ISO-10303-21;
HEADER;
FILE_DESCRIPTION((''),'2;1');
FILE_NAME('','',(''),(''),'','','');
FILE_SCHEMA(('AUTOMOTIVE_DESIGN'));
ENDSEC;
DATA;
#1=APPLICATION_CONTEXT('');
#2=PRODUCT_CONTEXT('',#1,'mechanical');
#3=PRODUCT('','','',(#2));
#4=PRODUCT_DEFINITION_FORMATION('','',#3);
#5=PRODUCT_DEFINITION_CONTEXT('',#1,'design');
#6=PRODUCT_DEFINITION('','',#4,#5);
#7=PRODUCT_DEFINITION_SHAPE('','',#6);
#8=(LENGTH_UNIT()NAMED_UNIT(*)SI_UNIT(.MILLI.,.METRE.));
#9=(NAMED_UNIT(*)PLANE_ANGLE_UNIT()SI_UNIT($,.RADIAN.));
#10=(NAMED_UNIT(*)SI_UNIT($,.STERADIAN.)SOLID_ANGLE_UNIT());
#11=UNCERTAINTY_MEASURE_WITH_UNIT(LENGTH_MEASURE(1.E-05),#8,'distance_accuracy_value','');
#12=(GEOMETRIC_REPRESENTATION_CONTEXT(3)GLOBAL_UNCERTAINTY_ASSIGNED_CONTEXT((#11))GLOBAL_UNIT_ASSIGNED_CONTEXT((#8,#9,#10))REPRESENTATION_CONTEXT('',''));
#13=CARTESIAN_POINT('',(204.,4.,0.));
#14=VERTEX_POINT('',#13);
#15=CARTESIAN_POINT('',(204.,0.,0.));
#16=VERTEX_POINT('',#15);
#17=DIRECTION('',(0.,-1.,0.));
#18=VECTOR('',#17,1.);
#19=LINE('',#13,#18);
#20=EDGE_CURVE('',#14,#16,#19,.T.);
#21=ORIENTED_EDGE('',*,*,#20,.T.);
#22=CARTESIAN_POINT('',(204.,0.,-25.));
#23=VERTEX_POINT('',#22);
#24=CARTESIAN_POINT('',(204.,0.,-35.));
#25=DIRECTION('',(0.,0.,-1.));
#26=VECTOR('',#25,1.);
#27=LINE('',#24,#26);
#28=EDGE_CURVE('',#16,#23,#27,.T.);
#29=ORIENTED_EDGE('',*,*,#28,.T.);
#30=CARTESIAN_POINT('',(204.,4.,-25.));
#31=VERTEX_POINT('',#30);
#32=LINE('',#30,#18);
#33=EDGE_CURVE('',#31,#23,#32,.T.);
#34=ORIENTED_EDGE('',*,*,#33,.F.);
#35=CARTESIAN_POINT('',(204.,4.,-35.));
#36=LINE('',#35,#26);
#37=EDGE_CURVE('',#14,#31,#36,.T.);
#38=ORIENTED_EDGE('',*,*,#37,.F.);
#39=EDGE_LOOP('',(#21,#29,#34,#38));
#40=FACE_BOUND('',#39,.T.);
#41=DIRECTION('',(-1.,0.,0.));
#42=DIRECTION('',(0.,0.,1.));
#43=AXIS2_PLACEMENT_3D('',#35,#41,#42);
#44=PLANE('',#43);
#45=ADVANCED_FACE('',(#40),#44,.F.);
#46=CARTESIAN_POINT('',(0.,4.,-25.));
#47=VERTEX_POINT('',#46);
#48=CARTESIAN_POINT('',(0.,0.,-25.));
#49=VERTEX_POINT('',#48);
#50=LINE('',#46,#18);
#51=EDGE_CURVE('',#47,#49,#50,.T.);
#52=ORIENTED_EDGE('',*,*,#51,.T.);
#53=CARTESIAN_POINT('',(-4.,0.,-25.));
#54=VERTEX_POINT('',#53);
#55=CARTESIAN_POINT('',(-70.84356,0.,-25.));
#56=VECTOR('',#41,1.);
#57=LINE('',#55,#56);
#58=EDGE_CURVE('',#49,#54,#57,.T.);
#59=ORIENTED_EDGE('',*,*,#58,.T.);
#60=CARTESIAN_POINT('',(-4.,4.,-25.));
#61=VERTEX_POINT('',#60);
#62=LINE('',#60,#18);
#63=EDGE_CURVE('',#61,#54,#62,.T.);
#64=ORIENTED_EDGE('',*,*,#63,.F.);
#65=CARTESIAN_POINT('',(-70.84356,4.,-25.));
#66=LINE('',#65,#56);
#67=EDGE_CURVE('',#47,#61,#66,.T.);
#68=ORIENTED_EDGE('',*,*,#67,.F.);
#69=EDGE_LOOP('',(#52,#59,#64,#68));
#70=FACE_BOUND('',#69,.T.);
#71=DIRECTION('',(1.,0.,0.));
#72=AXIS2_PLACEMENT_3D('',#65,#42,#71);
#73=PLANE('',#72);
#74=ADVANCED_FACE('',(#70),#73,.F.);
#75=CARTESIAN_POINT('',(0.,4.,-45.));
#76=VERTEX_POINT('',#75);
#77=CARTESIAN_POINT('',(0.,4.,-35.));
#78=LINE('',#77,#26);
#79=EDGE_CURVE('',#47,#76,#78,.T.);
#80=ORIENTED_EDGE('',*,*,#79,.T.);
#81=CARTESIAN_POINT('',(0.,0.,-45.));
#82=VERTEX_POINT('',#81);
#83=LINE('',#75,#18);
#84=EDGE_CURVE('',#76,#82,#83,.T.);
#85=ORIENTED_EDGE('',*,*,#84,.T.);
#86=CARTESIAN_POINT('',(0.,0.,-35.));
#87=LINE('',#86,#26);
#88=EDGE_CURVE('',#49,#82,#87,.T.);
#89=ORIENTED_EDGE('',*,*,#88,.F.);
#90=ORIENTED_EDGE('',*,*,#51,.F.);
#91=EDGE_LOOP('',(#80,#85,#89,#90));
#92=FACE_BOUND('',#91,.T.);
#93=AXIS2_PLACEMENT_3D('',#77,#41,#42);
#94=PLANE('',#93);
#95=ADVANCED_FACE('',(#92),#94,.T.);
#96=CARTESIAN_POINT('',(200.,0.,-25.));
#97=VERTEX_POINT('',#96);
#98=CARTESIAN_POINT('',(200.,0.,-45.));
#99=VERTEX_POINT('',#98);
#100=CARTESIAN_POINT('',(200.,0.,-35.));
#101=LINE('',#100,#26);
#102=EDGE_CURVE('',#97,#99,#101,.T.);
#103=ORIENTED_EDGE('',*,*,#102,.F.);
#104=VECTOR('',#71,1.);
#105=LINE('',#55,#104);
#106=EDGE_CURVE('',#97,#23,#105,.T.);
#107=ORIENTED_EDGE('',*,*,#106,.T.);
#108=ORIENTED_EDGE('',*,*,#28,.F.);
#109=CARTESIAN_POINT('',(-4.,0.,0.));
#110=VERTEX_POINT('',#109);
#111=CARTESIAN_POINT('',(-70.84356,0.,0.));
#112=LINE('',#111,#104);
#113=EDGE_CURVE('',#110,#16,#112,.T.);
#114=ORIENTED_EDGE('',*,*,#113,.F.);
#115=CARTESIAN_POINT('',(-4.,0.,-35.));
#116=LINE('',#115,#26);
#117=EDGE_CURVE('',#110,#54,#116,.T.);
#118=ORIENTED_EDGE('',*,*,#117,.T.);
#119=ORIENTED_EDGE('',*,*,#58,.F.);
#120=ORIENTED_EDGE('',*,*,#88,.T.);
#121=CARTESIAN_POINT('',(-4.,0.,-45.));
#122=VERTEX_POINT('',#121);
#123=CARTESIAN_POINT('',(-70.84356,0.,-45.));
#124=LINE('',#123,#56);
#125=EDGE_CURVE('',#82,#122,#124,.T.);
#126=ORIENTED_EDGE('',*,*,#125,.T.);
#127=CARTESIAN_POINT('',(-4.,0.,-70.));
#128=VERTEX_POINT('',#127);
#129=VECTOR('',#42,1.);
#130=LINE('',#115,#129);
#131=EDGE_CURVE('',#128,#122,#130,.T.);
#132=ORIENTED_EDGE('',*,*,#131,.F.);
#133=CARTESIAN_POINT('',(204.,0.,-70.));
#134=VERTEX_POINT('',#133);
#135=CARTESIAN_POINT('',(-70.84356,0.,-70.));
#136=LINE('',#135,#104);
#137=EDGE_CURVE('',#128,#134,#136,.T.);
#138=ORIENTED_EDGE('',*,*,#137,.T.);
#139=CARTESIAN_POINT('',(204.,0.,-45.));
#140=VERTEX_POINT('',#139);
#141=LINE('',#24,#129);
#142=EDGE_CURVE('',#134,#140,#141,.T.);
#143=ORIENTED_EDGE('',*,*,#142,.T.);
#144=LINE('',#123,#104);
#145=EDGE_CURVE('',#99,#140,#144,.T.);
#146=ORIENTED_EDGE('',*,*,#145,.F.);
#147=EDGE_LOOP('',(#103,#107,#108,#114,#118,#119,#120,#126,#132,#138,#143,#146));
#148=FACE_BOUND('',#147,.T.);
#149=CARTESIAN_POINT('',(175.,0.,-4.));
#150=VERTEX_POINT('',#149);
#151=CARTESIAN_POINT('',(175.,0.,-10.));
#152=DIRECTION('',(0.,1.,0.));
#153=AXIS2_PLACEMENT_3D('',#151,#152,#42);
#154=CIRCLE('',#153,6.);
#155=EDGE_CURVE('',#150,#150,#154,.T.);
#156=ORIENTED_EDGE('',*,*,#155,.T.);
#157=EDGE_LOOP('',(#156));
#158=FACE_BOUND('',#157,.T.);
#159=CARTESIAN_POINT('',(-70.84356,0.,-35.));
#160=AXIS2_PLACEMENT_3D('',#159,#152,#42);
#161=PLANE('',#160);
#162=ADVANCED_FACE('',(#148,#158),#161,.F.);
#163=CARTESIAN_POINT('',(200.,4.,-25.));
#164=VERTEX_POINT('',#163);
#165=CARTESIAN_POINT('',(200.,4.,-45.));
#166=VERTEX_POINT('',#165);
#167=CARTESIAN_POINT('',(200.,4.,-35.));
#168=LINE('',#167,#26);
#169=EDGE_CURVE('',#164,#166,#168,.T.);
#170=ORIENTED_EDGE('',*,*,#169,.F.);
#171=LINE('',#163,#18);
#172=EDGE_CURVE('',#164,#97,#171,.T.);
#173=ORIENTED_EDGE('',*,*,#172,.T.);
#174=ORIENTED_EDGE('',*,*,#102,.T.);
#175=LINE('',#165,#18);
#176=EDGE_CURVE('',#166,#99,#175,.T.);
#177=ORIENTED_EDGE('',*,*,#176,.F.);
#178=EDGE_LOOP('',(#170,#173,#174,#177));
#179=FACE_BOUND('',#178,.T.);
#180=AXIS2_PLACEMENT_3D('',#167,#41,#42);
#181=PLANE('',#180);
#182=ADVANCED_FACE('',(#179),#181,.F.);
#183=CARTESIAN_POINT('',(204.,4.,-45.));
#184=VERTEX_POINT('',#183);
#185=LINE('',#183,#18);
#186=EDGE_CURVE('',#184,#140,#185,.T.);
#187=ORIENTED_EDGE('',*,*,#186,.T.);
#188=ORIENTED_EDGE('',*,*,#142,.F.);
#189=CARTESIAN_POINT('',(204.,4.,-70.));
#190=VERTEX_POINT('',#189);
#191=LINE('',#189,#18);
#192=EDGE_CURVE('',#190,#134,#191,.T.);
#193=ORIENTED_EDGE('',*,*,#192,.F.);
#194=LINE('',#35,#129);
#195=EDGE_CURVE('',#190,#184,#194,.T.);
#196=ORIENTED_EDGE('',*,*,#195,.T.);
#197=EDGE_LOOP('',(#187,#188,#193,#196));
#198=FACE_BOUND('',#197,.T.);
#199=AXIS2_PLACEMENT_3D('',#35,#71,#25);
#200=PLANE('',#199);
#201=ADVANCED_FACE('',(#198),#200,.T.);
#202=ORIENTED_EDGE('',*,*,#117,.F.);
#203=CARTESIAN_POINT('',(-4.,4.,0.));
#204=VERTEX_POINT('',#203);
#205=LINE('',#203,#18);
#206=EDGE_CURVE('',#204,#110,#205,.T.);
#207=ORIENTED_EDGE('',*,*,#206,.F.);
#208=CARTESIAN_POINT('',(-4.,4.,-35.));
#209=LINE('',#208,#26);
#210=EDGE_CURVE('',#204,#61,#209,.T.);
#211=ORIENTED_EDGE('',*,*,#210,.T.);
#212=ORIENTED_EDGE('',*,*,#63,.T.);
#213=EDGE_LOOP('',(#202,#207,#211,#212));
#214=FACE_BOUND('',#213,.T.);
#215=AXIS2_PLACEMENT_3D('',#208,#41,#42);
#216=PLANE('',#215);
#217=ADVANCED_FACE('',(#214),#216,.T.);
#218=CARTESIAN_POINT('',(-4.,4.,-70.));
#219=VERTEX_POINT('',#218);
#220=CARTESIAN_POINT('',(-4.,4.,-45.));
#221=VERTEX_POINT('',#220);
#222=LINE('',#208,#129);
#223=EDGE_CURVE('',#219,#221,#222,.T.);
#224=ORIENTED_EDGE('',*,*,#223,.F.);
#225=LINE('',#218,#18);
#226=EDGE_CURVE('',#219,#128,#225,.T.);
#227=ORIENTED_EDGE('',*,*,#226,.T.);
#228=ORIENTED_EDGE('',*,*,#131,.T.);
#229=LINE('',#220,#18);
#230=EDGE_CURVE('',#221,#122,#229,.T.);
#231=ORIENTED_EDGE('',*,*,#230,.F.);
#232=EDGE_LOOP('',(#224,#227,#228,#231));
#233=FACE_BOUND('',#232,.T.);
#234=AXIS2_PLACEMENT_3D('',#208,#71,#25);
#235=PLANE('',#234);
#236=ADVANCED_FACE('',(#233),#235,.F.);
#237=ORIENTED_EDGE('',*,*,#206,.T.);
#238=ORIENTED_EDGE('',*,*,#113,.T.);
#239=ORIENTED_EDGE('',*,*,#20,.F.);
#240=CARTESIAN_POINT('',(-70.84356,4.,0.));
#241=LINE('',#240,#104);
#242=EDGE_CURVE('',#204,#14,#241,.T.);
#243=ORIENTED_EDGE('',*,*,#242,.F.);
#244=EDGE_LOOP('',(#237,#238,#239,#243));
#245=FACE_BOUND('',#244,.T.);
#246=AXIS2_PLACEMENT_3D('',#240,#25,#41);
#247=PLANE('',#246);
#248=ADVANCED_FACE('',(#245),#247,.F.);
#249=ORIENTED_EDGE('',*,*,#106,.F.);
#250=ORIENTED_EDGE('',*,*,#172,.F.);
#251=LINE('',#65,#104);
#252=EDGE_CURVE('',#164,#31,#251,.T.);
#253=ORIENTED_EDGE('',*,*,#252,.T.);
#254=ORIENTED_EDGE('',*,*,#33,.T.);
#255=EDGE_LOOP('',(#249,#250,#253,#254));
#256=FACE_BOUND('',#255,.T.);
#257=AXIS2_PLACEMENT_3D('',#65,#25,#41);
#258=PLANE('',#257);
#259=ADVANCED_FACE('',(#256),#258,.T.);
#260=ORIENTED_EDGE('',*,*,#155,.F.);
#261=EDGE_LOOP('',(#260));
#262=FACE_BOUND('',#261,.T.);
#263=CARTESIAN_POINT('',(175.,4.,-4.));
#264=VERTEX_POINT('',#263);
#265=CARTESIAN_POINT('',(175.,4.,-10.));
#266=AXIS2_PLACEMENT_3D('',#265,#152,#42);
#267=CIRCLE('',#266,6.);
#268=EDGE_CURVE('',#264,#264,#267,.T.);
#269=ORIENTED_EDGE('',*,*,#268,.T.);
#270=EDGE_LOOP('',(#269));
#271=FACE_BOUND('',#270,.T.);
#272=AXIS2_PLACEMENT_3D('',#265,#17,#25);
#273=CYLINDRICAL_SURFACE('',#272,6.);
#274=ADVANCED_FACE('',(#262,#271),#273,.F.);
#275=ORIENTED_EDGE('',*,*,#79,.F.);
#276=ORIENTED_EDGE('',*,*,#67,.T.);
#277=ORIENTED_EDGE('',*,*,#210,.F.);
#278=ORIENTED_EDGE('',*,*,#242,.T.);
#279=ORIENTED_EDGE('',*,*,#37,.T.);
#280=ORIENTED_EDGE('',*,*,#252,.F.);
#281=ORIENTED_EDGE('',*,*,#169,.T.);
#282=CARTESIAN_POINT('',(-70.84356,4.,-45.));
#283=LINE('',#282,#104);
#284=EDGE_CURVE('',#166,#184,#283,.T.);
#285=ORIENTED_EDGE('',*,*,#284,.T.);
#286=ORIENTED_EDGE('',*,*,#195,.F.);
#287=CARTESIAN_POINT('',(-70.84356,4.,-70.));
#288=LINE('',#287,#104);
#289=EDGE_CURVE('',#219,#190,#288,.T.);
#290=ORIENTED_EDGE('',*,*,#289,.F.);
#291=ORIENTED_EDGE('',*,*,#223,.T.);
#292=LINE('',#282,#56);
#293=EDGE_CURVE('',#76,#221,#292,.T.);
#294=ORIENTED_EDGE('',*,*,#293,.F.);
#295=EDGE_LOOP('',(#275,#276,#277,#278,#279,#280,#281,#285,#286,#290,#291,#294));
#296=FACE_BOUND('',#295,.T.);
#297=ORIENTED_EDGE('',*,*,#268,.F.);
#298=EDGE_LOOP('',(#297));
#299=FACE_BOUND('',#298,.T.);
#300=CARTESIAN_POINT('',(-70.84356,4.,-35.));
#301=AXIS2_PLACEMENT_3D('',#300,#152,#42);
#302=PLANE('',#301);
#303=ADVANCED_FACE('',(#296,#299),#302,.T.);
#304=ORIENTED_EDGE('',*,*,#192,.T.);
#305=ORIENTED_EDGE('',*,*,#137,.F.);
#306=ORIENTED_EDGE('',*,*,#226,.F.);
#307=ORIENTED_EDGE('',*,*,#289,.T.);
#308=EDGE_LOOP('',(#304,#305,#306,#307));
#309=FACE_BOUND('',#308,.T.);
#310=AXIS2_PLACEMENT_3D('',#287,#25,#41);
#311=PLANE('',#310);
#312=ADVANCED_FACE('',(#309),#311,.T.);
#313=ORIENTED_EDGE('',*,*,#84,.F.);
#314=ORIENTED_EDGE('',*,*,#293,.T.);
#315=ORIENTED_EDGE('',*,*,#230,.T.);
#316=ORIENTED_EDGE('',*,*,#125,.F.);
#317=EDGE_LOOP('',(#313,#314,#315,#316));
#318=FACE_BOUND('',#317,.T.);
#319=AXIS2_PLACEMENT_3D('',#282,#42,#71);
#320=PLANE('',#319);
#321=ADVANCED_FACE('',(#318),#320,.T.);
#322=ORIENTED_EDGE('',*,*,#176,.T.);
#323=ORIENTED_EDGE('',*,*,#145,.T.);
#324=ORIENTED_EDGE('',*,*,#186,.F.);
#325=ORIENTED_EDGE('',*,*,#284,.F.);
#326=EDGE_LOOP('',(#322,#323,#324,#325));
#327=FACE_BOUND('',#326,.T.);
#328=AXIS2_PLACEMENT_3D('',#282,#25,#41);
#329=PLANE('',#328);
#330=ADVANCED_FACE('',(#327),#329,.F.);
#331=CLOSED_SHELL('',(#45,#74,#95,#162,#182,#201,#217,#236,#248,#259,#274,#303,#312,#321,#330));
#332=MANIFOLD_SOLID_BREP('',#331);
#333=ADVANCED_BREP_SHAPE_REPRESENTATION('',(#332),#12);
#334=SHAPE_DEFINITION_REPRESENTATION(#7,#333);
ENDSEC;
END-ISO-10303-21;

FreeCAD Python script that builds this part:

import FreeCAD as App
import Part
import Sketcher

V = App.Vector
Q = App.Units.Quantity


def add_polygon(sketch, points):
    """Adds a closed chain of lines whose ends are joined by coincident constraints."""
    first, n = sketch.GeometryCount, len(points)
    for a, b in zip(points, points[1:] + points[:1]):
        sketch.addGeometry(Part.LineSegment(App.Vector(*a, 0), App.Vector(*b, 0)), False)
    for i in range(n):
        sketch.addConstraint(Sketcher.Constraint("Coincident", first + i, 2, first + (i + 1) % n, 1))

doc = App.newDocument("Part")
params = doc.addObject("Spreadsheet::Sheet", "Params")
for row, (alias, value) in enumerate([
    ("sketch1_diameter", "12 mm"),
    ("sketch1_width", "4 mm"),
    ("sketch1_width2", "208 mm"),
    ("sketch1_height", "25 mm"),
    ("sketch1_height2", "20 mm"),
    ("pad1_length", "4 mm"),
], start=1):
    params.set(f"A{row}", alias)
    params.set(f"B{row}", "=" + value)
    params.setAlias(f"B{row}", alias)

body = doc.addObject("PartDesign::Body", "Body")

sketch1 = body.newObject("Sketcher::SketchObject", "Sketch")
sketch1.AttachmentSupport = (doc.getObject("XZ_Plane"), [""])
sketch1.MapMode = "FlatFace"
add_polygon(sketch1, [(204, 0), (204, -25), (200, -25), (200, -45), (204, -45), (204, -70), (-4, -70), (-4, -45), (0, -45), (0, -25), (-4, -25), (-4, 0)])
sketch1.addGeometry(Part.Circle(V(175, -10, 0), V(0, 0, 1), 6), False)
sketch1.addConstraint([
    Sketcher.Constraint("Vertical", 0),
    Sketcher.Constraint("Horizontal", 1),
    Sketcher.Constraint("Vertical", 2),
    Sketcher.Constraint("Horizontal", 3),
    Sketcher.Constraint("Vertical", 4),
    Sketcher.Constraint("Horizontal", 5),
    Sketcher.Constraint("Vertical", 6),
    Sketcher.Constraint("Horizontal", 7),
    Sketcher.Constraint("Vertical", 8),
    Sketcher.Constraint("Horizontal", 9),
    Sketcher.Constraint("Vertical", 10),
    Sketcher.Constraint("Horizontal", 11),
    Sketcher.Constraint("PointOnObject", 7, 2, -2),
    Sketcher.Constraint("PointOnObject", 10, 2, -1),
    Sketcher.Constraint("Horizontal", 3, 2, 6, 2),
    Sketcher.Constraint("Horizontal", 1, 2, 8, 2),
    Sketcher.Constraint("Vertical", 0, 2, 3, 2),
    Sketcher.Constraint("Vertical", 6, 2, 9, 2),
    Sketcher.Constraint("Equal", 3, 7),
    Sketcher.Constraint("Equal", 0, 4),
    Sketcher.Constraint("Diameter", 12, Q("12 mm")),
    Sketcher.Constraint("DistanceX", 1, 2, 1, 1, Q("4 mm")),
    Sketcher.Constraint("DistanceX", 5, 2, 5, 1, Q("208 mm")),
    Sketcher.Constraint("DistanceY", 0, 2, 0, 1, Q("25 mm")),
    Sketcher.Constraint("DistanceY", 2, 2, 2, 1, Q("20 mm")),
    Sketcher.Constraint("DistanceX", -1, 1, 12, 3, Q("175 mm")),
    Sketcher.Constraint("DistanceY", 12, 3, -1, 1, Q("10 mm")),
])
sketch1.setExpression("Constraints[32]", "Params.sketch1_diameter")
sketch1.setExpression("Constraints[33]", "Params.sketch1_width")
sketch1.setExpression("Constraints[34]", "Params.sketch1_width2")
sketch1.setExpression("Constraints[35]", "Params.sketch1_height")
sketch1.setExpression("Constraints[36]", "Params.sketch1_height2")
pad1 = body.newObject("PartDesign::Pad", "Pad")
pad1.Profile = sketch1
pad1.setExpression("Length", "Params.pad1_length")
pad1.Reversed = True

doc.recompute()
